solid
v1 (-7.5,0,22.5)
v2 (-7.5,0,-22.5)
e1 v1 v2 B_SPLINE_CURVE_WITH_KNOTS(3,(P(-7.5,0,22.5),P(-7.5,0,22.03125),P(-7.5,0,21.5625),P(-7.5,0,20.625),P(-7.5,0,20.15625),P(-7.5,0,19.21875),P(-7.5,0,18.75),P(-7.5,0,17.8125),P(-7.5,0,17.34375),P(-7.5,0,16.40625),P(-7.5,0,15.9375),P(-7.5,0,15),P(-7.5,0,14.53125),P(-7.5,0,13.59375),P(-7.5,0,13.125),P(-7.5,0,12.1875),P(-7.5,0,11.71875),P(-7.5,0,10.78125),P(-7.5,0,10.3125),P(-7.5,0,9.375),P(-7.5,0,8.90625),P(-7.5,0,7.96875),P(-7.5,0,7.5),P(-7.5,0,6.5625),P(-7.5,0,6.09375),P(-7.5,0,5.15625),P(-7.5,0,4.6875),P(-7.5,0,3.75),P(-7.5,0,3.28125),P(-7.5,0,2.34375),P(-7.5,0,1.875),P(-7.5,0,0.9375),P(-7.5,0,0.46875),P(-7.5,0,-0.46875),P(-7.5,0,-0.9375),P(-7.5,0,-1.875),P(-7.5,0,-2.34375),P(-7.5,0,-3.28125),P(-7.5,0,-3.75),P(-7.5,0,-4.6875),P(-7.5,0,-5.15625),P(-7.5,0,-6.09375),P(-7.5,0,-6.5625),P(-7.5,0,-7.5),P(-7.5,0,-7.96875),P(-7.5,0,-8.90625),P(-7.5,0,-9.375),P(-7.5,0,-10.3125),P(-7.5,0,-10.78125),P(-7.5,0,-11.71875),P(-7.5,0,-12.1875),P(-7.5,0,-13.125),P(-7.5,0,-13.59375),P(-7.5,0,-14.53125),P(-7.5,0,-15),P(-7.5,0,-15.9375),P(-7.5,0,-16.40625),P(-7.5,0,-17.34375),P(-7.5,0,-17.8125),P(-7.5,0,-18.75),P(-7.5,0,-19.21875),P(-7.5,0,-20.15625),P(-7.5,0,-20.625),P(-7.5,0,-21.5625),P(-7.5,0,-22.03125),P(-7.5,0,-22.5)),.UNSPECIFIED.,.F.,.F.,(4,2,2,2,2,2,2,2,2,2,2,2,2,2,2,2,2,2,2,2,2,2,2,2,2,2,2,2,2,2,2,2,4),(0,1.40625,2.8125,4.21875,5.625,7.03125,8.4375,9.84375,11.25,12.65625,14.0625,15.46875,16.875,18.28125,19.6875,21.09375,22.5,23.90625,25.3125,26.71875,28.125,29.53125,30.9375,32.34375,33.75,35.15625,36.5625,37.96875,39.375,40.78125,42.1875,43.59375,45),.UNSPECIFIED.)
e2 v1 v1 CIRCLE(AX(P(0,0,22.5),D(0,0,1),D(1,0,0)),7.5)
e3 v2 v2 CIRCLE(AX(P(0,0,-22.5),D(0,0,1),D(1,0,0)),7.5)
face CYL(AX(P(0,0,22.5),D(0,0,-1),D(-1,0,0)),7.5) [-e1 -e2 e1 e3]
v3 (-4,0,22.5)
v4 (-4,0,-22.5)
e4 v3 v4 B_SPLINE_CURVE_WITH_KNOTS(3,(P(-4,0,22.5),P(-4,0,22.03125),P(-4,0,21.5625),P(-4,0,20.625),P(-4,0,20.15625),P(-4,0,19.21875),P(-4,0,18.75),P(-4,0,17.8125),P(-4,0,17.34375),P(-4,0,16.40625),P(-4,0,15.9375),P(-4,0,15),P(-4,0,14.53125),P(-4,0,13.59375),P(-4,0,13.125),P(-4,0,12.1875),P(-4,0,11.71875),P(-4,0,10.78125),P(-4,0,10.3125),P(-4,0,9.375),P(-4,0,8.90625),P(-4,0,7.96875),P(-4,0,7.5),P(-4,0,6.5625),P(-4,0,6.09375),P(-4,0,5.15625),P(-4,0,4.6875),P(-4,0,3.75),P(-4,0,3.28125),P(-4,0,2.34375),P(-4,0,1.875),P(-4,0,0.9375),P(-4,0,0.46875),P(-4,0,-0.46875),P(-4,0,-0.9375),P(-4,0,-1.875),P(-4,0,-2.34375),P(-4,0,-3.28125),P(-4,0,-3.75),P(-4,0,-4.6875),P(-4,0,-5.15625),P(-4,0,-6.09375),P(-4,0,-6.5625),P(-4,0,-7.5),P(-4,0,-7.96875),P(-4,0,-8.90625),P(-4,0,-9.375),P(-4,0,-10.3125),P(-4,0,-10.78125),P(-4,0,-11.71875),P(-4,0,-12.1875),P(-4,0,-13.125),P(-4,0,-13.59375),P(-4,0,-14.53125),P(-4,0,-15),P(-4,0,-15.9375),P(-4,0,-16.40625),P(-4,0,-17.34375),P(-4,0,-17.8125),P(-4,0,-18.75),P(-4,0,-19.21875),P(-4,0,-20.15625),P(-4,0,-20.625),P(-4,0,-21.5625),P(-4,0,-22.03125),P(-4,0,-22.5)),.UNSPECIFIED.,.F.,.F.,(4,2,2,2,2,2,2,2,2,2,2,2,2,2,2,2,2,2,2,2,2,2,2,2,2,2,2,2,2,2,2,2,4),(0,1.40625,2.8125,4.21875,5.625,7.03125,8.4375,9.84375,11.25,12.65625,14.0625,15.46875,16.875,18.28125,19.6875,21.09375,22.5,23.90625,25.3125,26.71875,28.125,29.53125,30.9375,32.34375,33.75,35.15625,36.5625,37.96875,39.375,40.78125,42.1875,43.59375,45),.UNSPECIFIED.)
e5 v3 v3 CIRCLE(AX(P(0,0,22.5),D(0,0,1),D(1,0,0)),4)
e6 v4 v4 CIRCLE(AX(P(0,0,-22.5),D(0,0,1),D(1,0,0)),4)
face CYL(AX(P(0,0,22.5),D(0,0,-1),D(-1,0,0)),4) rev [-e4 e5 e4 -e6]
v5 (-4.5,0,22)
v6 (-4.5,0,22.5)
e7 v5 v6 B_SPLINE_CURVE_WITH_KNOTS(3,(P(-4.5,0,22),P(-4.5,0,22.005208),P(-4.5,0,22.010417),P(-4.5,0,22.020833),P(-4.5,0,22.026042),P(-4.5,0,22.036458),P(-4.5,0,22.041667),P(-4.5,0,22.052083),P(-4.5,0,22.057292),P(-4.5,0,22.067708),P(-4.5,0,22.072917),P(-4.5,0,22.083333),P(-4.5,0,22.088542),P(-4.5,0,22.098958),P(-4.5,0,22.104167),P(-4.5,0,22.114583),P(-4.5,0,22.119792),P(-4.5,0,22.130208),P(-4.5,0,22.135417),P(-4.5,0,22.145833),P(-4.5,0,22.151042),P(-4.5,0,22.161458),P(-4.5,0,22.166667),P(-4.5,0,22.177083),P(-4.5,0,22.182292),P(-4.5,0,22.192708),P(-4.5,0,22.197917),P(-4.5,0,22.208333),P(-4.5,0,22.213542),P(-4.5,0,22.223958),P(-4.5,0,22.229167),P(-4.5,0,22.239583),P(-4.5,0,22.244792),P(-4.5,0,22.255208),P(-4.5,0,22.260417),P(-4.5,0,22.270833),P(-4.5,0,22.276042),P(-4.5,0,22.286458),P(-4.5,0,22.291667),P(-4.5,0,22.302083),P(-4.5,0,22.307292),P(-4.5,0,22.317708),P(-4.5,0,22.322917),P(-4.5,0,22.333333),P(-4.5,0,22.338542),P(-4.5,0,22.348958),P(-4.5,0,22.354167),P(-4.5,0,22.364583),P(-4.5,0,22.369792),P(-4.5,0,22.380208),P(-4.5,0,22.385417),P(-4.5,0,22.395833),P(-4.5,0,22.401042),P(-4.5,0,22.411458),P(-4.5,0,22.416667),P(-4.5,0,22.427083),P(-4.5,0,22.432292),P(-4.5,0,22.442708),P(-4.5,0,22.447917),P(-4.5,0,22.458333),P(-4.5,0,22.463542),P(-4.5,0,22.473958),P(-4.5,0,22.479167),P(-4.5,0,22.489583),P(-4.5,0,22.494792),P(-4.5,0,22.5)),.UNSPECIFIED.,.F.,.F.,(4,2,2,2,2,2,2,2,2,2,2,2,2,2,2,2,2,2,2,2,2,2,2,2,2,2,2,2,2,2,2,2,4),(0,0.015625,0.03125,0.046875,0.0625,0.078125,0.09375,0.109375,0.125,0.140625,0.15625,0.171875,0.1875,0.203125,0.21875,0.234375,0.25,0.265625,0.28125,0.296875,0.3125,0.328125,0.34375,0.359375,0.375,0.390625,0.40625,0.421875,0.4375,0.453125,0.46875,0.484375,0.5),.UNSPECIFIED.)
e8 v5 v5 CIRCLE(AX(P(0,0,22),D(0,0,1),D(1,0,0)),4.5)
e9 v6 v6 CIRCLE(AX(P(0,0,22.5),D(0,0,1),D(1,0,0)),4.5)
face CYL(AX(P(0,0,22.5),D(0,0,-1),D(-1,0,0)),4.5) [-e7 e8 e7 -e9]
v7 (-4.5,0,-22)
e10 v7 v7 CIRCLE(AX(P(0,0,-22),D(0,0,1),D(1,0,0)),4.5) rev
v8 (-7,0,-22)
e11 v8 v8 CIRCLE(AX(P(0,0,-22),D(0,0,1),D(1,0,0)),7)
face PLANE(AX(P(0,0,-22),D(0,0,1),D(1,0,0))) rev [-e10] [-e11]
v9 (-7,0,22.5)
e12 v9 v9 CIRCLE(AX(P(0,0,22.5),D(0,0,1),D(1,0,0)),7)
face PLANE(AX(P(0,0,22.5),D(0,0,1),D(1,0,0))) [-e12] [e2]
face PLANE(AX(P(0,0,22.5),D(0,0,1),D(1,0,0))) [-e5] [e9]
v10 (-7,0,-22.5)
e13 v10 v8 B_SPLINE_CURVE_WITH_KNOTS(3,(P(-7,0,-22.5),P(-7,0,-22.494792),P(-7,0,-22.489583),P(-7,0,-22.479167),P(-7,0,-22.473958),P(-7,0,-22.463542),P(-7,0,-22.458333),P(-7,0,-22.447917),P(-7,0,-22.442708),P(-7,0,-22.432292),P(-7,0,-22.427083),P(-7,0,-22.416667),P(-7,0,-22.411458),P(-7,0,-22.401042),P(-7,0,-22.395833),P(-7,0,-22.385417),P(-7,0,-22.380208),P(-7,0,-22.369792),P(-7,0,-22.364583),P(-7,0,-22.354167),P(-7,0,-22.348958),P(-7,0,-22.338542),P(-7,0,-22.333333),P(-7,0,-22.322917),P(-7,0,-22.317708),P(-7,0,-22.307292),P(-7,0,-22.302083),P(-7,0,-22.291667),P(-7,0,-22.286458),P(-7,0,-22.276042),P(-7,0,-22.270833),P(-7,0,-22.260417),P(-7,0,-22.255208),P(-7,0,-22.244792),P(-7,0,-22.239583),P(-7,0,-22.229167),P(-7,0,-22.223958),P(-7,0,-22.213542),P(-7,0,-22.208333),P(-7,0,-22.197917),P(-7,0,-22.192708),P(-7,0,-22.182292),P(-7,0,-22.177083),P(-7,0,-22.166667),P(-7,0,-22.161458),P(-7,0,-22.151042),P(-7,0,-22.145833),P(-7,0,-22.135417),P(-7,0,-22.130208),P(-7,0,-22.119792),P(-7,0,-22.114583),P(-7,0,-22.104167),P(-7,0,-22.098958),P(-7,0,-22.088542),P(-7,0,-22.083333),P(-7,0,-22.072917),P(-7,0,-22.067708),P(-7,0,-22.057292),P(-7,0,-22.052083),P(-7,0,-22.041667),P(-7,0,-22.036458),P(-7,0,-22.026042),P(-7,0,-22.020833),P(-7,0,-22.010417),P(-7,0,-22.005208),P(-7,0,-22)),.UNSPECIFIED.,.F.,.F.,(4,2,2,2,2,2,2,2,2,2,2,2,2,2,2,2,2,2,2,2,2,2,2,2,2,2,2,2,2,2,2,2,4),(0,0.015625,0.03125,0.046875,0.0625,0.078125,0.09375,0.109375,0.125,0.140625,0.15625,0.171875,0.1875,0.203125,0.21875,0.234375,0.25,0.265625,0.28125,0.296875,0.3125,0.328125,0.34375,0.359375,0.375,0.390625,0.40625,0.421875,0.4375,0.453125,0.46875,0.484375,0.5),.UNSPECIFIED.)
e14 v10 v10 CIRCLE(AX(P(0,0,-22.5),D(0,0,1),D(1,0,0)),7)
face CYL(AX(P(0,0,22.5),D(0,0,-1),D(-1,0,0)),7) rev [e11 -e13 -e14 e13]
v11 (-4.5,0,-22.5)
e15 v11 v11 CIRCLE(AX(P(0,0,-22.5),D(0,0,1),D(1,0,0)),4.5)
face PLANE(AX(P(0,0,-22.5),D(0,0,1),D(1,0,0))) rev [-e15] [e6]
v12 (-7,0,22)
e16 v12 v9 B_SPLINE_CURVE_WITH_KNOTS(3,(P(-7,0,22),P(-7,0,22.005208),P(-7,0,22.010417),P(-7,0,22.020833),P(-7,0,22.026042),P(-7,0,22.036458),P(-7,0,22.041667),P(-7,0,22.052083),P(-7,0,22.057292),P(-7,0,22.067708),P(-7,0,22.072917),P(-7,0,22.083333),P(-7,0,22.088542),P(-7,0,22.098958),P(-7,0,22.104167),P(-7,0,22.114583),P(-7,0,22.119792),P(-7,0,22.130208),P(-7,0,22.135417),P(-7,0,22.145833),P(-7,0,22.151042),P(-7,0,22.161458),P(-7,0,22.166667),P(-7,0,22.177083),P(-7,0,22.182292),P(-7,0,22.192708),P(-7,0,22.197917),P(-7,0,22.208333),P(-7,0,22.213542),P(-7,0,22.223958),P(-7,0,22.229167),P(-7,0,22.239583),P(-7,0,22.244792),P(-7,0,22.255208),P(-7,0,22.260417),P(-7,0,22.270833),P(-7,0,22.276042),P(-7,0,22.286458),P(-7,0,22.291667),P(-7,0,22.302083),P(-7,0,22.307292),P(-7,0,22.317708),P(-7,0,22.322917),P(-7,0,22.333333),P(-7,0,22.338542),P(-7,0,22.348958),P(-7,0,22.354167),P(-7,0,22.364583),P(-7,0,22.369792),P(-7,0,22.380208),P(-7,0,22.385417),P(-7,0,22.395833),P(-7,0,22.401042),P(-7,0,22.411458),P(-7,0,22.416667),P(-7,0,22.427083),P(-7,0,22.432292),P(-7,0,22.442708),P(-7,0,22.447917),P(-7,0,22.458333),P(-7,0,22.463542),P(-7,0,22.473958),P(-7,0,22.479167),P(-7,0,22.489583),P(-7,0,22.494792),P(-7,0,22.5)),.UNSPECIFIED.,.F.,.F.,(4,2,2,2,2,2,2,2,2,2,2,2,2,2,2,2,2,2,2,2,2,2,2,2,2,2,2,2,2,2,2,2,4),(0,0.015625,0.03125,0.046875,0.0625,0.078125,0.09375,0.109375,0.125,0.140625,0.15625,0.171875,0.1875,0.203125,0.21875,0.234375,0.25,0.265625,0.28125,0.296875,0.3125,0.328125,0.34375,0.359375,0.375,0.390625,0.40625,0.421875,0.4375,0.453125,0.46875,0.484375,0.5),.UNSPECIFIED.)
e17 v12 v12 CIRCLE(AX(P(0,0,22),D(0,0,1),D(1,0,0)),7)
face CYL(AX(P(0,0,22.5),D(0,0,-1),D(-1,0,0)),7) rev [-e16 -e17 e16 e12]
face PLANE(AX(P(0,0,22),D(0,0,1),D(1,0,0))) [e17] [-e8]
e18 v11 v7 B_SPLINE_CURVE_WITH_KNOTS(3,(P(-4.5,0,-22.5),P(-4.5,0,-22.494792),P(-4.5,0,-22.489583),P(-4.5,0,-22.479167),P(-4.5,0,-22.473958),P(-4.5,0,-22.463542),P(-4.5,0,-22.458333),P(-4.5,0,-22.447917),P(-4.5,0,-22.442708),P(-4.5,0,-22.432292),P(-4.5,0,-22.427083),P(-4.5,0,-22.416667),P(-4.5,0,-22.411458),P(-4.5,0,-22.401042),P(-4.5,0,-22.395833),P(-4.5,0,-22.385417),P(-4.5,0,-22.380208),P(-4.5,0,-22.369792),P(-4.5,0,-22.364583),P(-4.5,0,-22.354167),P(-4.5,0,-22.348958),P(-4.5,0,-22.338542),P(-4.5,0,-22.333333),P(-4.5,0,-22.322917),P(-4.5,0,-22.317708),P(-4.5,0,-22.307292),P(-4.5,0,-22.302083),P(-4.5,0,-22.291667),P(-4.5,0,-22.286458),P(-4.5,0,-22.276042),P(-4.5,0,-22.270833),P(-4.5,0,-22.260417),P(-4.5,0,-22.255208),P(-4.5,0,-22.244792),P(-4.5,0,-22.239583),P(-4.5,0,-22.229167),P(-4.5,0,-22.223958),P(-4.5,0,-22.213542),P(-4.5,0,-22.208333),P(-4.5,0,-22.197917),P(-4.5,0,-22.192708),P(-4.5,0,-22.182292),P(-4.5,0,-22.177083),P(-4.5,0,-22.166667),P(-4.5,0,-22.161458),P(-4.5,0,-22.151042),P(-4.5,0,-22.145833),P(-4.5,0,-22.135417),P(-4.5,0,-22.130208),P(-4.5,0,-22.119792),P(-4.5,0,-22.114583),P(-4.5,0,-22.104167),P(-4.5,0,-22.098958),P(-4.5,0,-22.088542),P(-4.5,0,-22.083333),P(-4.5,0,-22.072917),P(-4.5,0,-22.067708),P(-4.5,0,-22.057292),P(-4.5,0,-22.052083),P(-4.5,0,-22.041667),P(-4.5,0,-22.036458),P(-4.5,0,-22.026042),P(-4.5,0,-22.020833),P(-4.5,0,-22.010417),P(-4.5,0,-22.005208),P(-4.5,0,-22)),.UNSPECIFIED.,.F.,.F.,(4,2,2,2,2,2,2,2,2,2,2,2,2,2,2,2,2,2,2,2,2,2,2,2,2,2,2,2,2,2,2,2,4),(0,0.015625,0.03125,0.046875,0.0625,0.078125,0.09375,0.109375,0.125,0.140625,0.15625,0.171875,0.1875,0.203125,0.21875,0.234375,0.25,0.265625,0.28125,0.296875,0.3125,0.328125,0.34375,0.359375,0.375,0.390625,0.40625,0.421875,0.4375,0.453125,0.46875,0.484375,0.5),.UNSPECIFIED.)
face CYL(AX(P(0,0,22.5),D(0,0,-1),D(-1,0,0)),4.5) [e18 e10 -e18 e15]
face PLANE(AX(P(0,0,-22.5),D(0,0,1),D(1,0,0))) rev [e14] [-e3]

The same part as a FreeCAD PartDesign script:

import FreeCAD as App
import Part
import Sketcher
from FreeCAD import Vector
Q = App.Units.Quantity

doc = App.newDocument("Part")
params = doc.addObject("Spreadsheet::Sheet", "Params")
for row, (alias, value) in enumerate([
    ("sketch1_diameter", "15 mm"),
    ("sketch1_diameter2", "14 mm"),
    ("pad1_length", "45 mm"),
    ("sketch2_diameter", "9 mm"),
    ("sketch2_diameter2", "8 mm"),
    ("pad2_length", "45 mm"),
    ("sketch3_diameter", "14 mm"),
    ("sketch3_diameter2", "9 mm"),
    ("pad3_length", "44 mm"),
], start=1):
    params.set(f"A{row}", alias)
    params.set(f"B{row}", "=" + value)
    params.setAlias(f"B{row}", alias)

body = doc.addObject("PartDesign::Body", "Body")

# Sketch on XY plane
sketch1 = body.newObject("Sketcher::SketchObject", "Sketch")
sketch1.AttachmentSupport = (doc.getObject("XY_Plane"), [""])
sketch1.MapMode = "FlatFace"
sketch1.addGeometry(Part.Circle(Vector(0, 0, 0), Vector(0, 0, 1), 8), False)
sketch1.addGeometry(Part.Circle(Vector(0, 0, 0), Vector(0, 0, 1), 7), False)
sketch1.addConstraint(Sketcher.Constraint("Coincident", 0, 3, -1, 1))
sketch1.addConstraint(Sketcher.Constraint("Coincident", 1, 3, -1, 1))
sketch1.addConstraint(Sketcher.Constraint("Diameter", 0, Q("15 mm")))
sketch1.addConstraint(Sketcher.Constraint("Diameter", 1, Q("14 mm")))
sketch1.setExpression("Constraints[2]", "Params.sketch1_diameter")
sketch1.setExpression("Constraints[3]", "Params.sketch1_diameter2")
pad1 = body.newObject("PartDesign::Pad", "Pad")
pad1.Profile = sketch1
pad1.setExpression("Length", "Params.pad1_length")
pad1.Midplane = True
body2 = doc.addObject("PartDesign::Body", "Body001")

# Sketch on XY plane
sketch2 = body2.newObject("Sketcher::SketchObject", "Sketch001")
sketch2.AttachmentSupport = (doc.getObject("XY_Plane001"), [""])
sketch2.MapMode = "FlatFace"
sketch2.addGeometry(Part.Circle(Vector(0, 0, 0), Vector(0, 0, 1), 4.5), False)
sketch2.addGeometry(Part.Circle(Vector(0, 0, 0), Vector(0, 0, 1), 4), False)
sketch2.addConstraint(Sketcher.Constraint("Coincident", 0, 3, -1, 1))
sketch2.addConstraint(Sketcher.Constraint("Coincident", 1, 3, -1, 1))
sketch2.addConstraint(Sketcher.Constraint("Diameter", 0, Q("9 mm")))
sketch2.addConstraint(Sketcher.Constraint("Diameter", 1, Q("8 mm")))
sketch2.setExpression("Constraints[2]", "Params.sketch2_diameter")
sketch2.setExpression("Constraints[3]", "Params.sketch2_diameter2")
pad2 = body2.newObject("PartDesign::Pad", "Pad001")
pad2.Profile = sketch2
pad2.setExpression("Length", "Params.pad2_length")
pad2.Midplane = True
body.AllowCompound = True
doc.recompute()

boolean = body.newObject("PartDesign::Boolean", "Boolean")
boolean.Type = "Fuse"
boolean.addObjects([body2])

# Sketch on XY plane
sketch3 = body.newObject("Sketcher::SketchObject", "Sketch002")
sketch3.AttachmentSupport = (doc.getObject("XY_Plane"), [""])
sketch3.MapMode = "FlatFace"
sketch3.addGeometry(Part.Circle(Vector(0, 0, 0), Vector(0, 0, 1), 7), False)
sketch3.addGeometry(Part.Circle(Vector(0, 0, 0), Vector(0, 0, 1), 4.5), False)
sketch3.addConstraint(Sketcher.Constraint("Coincident", 0, 3, -1, 1))
sketch3.addConstraint(Sketcher.Constraint("Coincident", 1, 3, -1, 1))
sketch3.addConstraint(Sketcher.Constraint("Diameter", 0, Q("14 mm")))
sketch3.addConstraint(Sketcher.Constraint("Diameter", 1, Q("9 mm")))
sketch3.setExpression("Constraints[2]", "Params.sketch3_diameter")
sketch3.setExpression("Constraints[3]", "Params.sketch3_diameter2")
pad3 = body.newObject("PartDesign::Pad", "Pad002")
pad3.Profile = sketch3
pad3.setExpression("Length", "Params.pad3_length")
pad3.Midplane = True

doc.recompute()
